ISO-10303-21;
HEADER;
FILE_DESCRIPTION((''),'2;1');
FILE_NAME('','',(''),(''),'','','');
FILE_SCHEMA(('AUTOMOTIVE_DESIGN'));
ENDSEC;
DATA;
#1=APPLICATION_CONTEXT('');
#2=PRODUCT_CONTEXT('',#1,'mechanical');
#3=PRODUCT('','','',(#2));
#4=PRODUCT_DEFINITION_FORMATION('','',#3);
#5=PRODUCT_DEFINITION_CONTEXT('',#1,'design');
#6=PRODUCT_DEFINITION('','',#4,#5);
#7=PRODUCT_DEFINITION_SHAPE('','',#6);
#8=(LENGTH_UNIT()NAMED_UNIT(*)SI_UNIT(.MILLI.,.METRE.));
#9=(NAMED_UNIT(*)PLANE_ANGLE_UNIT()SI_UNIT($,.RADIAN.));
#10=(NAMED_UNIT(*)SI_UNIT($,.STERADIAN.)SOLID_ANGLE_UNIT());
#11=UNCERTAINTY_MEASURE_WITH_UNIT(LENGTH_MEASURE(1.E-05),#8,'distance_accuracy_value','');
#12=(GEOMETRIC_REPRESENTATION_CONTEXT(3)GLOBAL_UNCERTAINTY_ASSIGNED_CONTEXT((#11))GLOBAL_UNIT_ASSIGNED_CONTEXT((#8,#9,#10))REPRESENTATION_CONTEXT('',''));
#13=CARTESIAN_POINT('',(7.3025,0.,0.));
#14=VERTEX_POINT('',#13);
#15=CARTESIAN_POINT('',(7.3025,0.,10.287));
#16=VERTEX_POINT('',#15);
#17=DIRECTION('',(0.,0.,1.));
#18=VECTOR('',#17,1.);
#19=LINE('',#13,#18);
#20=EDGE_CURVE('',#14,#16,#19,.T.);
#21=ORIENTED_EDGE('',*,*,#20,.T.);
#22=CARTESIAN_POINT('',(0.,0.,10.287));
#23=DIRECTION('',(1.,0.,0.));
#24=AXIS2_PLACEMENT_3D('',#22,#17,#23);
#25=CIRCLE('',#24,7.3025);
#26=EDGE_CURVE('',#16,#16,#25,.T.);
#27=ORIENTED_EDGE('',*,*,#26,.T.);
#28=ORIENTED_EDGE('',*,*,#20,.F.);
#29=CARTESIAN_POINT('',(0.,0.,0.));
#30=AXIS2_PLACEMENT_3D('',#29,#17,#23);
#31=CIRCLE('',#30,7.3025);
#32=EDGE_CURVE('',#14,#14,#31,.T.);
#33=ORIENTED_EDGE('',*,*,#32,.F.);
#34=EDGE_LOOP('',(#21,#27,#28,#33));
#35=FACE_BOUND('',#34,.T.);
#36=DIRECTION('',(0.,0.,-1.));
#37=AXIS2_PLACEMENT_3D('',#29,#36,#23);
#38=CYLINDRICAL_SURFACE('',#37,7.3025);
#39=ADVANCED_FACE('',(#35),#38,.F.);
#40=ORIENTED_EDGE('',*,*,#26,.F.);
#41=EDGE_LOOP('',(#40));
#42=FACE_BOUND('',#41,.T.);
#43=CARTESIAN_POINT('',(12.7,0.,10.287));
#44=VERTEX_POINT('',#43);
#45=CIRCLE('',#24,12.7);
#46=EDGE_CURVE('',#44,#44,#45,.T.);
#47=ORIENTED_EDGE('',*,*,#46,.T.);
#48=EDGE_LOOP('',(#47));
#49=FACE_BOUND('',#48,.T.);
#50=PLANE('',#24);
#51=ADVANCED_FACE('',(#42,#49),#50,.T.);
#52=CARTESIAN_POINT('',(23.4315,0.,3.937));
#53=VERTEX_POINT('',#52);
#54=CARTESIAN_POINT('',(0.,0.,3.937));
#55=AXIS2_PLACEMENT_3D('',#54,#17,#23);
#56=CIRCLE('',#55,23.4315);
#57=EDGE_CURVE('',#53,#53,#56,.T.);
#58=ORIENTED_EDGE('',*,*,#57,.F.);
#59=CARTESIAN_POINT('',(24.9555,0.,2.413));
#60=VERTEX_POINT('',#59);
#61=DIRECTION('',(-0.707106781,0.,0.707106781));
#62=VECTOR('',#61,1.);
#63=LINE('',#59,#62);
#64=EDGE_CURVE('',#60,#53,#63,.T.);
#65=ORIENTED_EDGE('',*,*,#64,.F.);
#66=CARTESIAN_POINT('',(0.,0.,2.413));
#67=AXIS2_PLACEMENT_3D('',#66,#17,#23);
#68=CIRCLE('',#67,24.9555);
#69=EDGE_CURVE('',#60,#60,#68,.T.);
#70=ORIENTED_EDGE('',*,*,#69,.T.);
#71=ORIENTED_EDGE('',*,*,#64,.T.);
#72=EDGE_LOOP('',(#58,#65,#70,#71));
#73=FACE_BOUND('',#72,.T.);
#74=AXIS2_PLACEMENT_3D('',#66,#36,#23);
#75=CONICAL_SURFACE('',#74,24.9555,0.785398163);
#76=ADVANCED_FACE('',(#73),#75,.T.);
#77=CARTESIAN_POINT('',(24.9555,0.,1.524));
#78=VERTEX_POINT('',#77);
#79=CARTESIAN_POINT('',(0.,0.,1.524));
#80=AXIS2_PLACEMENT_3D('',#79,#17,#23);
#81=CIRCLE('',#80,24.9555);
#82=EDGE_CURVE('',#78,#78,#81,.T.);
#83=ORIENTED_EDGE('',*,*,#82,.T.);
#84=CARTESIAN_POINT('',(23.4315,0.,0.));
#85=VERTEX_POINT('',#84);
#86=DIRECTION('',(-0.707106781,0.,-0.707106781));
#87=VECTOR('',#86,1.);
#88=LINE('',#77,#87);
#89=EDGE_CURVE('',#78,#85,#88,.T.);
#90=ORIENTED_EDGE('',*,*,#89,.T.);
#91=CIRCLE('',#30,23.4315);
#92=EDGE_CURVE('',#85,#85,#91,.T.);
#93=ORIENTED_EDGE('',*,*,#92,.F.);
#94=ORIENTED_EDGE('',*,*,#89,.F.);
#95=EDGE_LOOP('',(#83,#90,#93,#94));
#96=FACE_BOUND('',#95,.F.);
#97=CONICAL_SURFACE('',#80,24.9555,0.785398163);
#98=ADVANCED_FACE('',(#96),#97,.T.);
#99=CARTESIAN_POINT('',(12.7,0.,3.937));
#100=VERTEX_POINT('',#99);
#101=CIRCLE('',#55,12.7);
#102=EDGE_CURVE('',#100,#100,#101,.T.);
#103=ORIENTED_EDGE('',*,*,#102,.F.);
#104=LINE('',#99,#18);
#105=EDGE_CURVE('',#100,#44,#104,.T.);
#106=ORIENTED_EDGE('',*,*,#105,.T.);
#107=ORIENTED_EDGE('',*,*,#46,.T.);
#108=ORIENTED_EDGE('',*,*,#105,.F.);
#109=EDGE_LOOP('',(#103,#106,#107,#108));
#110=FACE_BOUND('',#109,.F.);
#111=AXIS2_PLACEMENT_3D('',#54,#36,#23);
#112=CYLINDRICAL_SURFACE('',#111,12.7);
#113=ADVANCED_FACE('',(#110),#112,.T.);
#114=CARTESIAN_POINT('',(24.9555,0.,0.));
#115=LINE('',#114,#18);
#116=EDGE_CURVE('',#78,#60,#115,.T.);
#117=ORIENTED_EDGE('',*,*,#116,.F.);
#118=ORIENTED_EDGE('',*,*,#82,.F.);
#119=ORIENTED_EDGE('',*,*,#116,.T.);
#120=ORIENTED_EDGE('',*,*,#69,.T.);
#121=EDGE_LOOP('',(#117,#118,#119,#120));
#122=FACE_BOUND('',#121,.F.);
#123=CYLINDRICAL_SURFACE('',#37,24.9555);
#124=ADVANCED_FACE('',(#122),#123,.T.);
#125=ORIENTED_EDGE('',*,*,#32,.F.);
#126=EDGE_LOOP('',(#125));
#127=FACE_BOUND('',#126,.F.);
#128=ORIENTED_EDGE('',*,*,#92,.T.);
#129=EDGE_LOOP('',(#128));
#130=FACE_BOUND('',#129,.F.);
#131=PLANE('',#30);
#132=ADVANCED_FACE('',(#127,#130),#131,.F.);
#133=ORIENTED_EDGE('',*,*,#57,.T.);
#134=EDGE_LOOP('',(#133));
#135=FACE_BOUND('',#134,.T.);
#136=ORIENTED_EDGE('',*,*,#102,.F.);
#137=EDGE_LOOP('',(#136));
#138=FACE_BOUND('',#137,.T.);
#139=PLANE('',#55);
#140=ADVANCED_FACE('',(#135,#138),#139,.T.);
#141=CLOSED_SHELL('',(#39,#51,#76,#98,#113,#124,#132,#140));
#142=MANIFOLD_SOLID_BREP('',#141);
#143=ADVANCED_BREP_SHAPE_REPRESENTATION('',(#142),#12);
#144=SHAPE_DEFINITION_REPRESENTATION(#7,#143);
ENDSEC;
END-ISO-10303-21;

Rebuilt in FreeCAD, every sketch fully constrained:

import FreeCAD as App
import Part
import Sketcher

V = App.Vector
Q = App.Units.Quantity


def edges_at(feature, points):
    """Names of the edges that pass closest to the given points."""
    edges = feature.Shape.Edges
    near = lambda p: min(range(len(edges)), key=lambda i: edges[i].distToShape(Part.Vertex(*p))[0])
    return sorted({f"Edge{near(p) + 1}" for p in points})

doc = App.newDocument("Part")
params = doc.addObject("Spreadsheet::Sheet", "Params")
for row, (alias, value) in enumerate([
    ("sketch1_diameter", "1.965 in"),
    ("sketch1_diameter2", "0.575 in"),
    ("pad1_length", "0.155 in"),
    ("sketch2_diameter", "1 in"),
    ("sketch2_diameter2", "0.575 in"),
    ("pad2_length", "0.25 in"),
    ("chamfer_size", "0.06 in"),
    ("chamfer2_size", "0.06 in"),
], start=1):
    params.set(f"A{row}", alias)
    params.set(f"B{row}", "=" + value)
    params.setAlias(f"B{row}", alias)

body = doc.addObject("PartDesign::Body", "Body")

# Sketch on XY plane
sketch1 = body.newObject("Sketcher::SketchObject", "Sketch")
sketch1.AttachmentSupport = (doc.getObject("XY_Plane"), [""])
sketch1.MapMode = "FlatFace"
sketch1.addGeometry(Part.Circle(V(0, 0, 0), V(0, 0, 1), 24.9555), False)
sketch1.addGeometry(Part.Circle(V(0, 0, 0), V(0, 0, 1), 7.3025), False)
sketch1.addConstraint(Sketcher.Constraint("Coincident", 0, 3, -1, 1))
sketch1.addConstraint(Sketcher.Constraint("Coincident", 1, 3, -1, 1))
sketch1.addConstraint(Sketcher.Constraint("Diameter", 0, Q("1.965 in")))
sketch1.addConstraint(Sketcher.Constraint("Diameter", 1, Q("0.575 in")))
sketch1.setExpression("Constraints[2]", "Params.sketch1_diameter")
sketch1.setExpression("Constraints[3]", "Params.sketch1_diameter2")
pad1 = body.newObject("PartDesign::Pad", "Pad")
pad1.Profile = sketch1
pad1.setExpression("Length", "Params.pad1_length")

# Sketch on XY plane
sketch2 = body.newObject("Sketcher::SketchObject", "Sketch001")
sketch2.AttachmentSupport = (doc.getObject("XY_Plane"), [""])
sketch2.MapMode = "FlatFace"
sketch2.AttachmentOffset = App.Placement(V(0, 0, 0.155 * 25.4), App.Rotation())
sketch2.addGeometry(Part.Circle(V(0, 0, 0), V(0, 0, 1), 12.7), False)
sketch2.addGeometry(Part.Circle(V(0, 0, 0), V(0, 0, 1), 7.3025), False)
sketch2.addConstraint(Sketcher.Constraint("Coincident", 0, 3, -1, 1))
sketch2.addConstraint(Sketcher.Constraint("Coincident", 1, 3, -1, 1))
sketch2.addConstraint(Sketcher.Constraint("Diameter", 0, Q("1 in")))
sketch2.addConstraint(Sketcher.Constraint("Diameter", 1, Q("0.575 in")))
sketch2.setExpression("Constraints[2]", "Params.sketch2_diameter")
sketch2.setExpression("Constraints[3]", "Params.sketch2_diameter2")
pad2 = body.newObject("PartDesign::Pad", "Pad001")
pad2.Profile = sketch2
pad2.setExpression("Length", "Params.pad2_length")
doc.recompute()

chamfer = body.newObject("PartDesign::Chamfer", "Chamfer")
chamfer.Base = (pad2, edges_at(pad2, [(-24.956, 0, 3.937)]))
chamfer.setExpression("Size", "Params.chamfer_size")
doc.recompute()

chamfer2 = body.newObject("PartDesign::Chamfer", "Chamfer001")
chamfer2.Base = (chamfer, edges_at(chamfer, [(-24.956, 0, 0)]))
chamfer2.setExpression("Size", "Params.chamfer2_size")

doc.recompute()
